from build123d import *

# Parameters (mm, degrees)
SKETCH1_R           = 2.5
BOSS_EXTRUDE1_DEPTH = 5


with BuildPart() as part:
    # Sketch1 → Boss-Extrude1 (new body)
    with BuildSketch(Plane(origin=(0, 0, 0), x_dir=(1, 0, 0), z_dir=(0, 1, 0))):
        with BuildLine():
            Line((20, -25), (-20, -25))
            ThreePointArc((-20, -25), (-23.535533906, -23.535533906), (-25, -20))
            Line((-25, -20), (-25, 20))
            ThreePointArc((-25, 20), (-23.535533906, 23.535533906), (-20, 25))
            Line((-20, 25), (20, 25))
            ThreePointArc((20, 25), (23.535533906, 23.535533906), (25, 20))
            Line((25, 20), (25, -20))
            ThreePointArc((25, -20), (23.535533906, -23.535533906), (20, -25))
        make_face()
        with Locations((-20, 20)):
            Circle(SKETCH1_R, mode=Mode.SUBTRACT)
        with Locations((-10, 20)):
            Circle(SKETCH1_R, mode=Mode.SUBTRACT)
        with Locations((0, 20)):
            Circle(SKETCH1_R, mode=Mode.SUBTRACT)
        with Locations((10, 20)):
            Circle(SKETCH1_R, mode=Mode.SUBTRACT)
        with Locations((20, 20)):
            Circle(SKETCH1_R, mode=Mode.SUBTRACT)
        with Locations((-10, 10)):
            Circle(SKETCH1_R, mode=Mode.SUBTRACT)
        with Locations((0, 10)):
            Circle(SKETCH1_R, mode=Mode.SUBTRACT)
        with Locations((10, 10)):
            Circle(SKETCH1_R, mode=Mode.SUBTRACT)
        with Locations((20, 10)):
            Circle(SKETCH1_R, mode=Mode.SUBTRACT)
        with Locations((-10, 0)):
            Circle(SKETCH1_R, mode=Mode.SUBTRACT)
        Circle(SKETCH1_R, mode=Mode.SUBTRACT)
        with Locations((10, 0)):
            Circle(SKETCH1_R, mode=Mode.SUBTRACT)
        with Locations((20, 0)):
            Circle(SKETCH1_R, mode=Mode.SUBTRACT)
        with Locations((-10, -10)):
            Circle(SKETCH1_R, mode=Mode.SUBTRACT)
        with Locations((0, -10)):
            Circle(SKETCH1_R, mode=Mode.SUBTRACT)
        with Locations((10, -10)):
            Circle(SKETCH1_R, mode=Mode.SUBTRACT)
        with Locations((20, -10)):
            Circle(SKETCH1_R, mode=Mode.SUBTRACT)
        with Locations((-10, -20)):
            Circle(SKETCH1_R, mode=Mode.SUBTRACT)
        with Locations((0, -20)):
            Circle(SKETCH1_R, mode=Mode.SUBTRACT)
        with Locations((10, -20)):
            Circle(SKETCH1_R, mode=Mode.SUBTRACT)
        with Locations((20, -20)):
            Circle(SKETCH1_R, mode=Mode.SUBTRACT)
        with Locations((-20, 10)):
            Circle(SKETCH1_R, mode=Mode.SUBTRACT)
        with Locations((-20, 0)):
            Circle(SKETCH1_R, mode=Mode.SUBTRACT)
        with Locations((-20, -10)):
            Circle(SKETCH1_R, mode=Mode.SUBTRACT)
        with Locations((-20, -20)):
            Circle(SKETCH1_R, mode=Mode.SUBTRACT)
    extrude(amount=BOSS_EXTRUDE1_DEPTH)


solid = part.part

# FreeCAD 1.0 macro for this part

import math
import FreeCAD as App
import Part
import Sketcher
Q = App.Units.Quantity

doc = App.newDocument("Part")
body = doc.addObject("PartDesign::Body", "Body")

sketch1 = body.newObject("Sketcher::SketchObject", "Sketch")
sketch1.AttachmentSupport = (doc.getObject("XZ_Plane"), [""])
sketch1.MapMode = "FlatFace"
sketch1.addGeometry([
    Part.LineSegment(App.Vector(-20, 25, 0), App.Vector(20, 25, 0)),
    Part.ArcOfCircle(Part.Circle(App.Vector(20, 20, 0), App.Vector(0, 0, 1), 5), math.radians(0), math.radians(90)),
    Part.LineSegment(App.Vector(25, 20, 0), App.Vector(25, -20, 0)),
    Part.ArcOfCircle(Part.Circle(App.Vector(20, -20, 0), App.Vector(0, 0, 1), 5), math.radians(-90), math.radians(0)),
    Part.LineSegment(App.Vector(20, -25, 0), App.Vector(-20, -25, 0)),
    Part.ArcOfCircle(Part.Circle(App.Vector(-20, -20, 0), App.Vector(0, 0, 1), 5), math.radians(180), math.radians(270)),
    Part.LineSegment(App.Vector(-25, -20, 0), App.Vector(-25, 20, 0)),
    Part.ArcOfCircle(Part.Circle(App.Vector(-20, 20, 0), App.Vector(0, 0, 1), 5), math.radians(90), math.radians(180)),
    Part.Circle(App.Vector(20, 20, 0), App.Vector(0, 0, 1), 2.5),
    Part.Circle(App.Vector(10, 20, 0), App.Vector(0, 0, 1), 2.5),
    Part.Circle(App.Vector(20, 10, 0), App.Vector(0, 0, 1), 2.5),
    Part.Circle(App.Vector(10, 10, 0), App.Vector(0, 0, 1), 2.5),
    Part.Circle(App.Vector(0, 20, 0), App.Vector(0, 0, 1), 2.5),
    Part.Circle(App.Vector(-10, 20, 0), App.Vector(0, 0, 1), 2.5),
    Part.Circle(App.Vector(-20, 20, 0), App.Vector(0, 0, 1), 2.5),
    Part.Circle(App.Vector(0, 10, 0), App.Vector(0, 0, 1), 2.5),
    Part.Circle(App.Vector(-10, 10, 0), App.Vector(0, 0, 1), 2.5),
    Part.Circle(App.Vector(-20, 10, 0), App.Vector(0, 0, 1), 2.5),
    Part.Circle(App.Vector(20, 0, 0), App.Vector(0, 0, 1), 2.5),
    Part.Circle(App.Vector(20, -10, 0), App.Vector(0, 0, 1), 2.5),
    Part.Circle(App.Vector(10, 0, 0), App.Vector(0, 0, 1), 2.5),
    Part.Circle(App.Vector(10, -10, 0), App.Vector(0, 0, 1), 2.5),
    Part.Circle(App.Vector(20, -20, 0), App.Vector(0, 0, 1), 2.5),
    Part.Circle(App.Vector(10, -20, 0), App.Vector(0, 0, 1), 2.5),
    Part.Circle(App.Vector(0, 0, 0), App.Vector(0, 0, 1), 2.5),
    Part.Circle(App.Vector(-10, 0, 0), App.Vector(0, 0, 1), 2.5),
    Part.Circle(App.Vector(0, -10, 0), App.Vector(0, 0, 1), 2.5),
    Part.Circle(App.Vector(-10, -10, 0), App.Vector(0, 0, 1), 2.5),
    Part.Circle(App.Vector(-20, 0, 0), App.Vector(0, 0, 1), 2.5),
    Part.Circle(App.Vector(-20, -10, 0), App.Vector(0, 0, 1), 2.5),
    Part.Circle(App.Vector(0, -20, 0), App.Vector(0, 0, 1), 2.5),
    Part.Circle(App.Vector(-10, -20, 0), App.Vector(0, 0, 1), 2.5),
    Part.Circle(App.Vector(-20, -20, 0), App.Vector(0, 0, 1), 2.5),
], False)
sketch1.addConstraint([
    Sketcher.Constraint("Tangent", 0, 2, 1, 2),
    Sketcher.Constraint("Tangent", 1, 1, 2, 1),
    Sketcher.Constraint("Tangent", 2, 2, 3, 2),
    Sketcher.Constraint("Tangent", 3, 1, 4, 1),
    Sketcher.Constraint("Tangent", 4, 2, 5, 2),
    Sketcher.Constraint("Tangent", 5, 1, 6, 1),
    Sketcher.Constraint("Tangent", 6, 2, 7, 2),
    Sketcher.Constraint("Tangent", 7, 1, 0, 1),
    Sketcher.Constraint("Horizontal", 0),
    Sketcher.Constraint("Vertical", 2),
    Sketcher.Constraint("Horizontal", 4),
    Sketcher.Constraint("Vertical", 6),
    Sketcher.Constraint("Coincident", 24, 3, -1, 1),
    Sketcher.Constraint("Coincident", 8, 3, 1, 3),
    Sketcher.Constraint("Coincident", 14, 3, 7, 3),
    Sketcher.Constraint("Coincident", 22, 3, 3, 3),
    Sketcher.Constraint("Coincident", 32, 3, 5, 3),
    Sketcher.Constraint("Equal", 1, 3),
    Sketcher.Constraint("Equal", 3, 5),
    Sketcher.Constraint("Equal", 5, 7),
    Sketcher.Constraint("Equal", 8, 9),
    Sketcher.Constraint("Equal", 9, 10),
    Sketcher.Constraint("Equal", 10, 11),
    Sketcher.Constraint("Equal", 11, 12),
    Sketcher.Constraint("Equal", 12, 13),
    Sketcher.Constraint("Equal", 13, 14),
    Sketcher.Constraint("Equal", 14, 15),
    Sketcher.Constraint("Equal", 15, 16),
    Sketcher.Constraint("Equal", 16, 17),
    Sketcher.Constraint("Equal", 17, 18),
    Sketcher.Constraint("Equal", 18, 19),
    Sketcher.Constraint("Equal", 19, 20),
    Sketcher.Constraint("Equal", 20, 21),
    Sketcher.Constraint("Equal", 21, 22),
    Sketcher.Constraint("Equal", 22, 23),
    Sketcher.Constraint("Equal", 23, 24),
    Sketcher.Constraint("Equal", 24, 25),
    Sketcher.Constraint("Equal", 25, 26),
    Sketcher.Constraint("Equal", 26, 27),
    Sketcher.Constraint("Equal", 27, 28),
    Sketcher.Constraint("Equal", 28, 29),
    Sketcher.Constraint("Equal", 29, 30),
    Sketcher.Constraint("Equal", 30, 31),
    Sketcher.Constraint("Equal", 31, 32),
    Sketcher.Constraint("Symmetric", 1, 3, 5, 3, -1, 1),
    Sketcher.Constraint("Symmetric", 17, 3, 19, 3, -1, 1),
    Sketcher.Constraint("Symmetric", 16, 3, 21, 3, -1, 1),
    Sketcher.Constraint("Symmetric", 13, 3, 23, 3, -1, 1),
    Sketcher.Constraint("Symmetric", 20, 3, 25, 3, -1, 1),
    Sketcher.Constraint("Symmetric", 15, 3, 26, 3, -1, 1),
    Sketcher.Constraint("Symmetric", 11, 3, 27, 3, -1, 1),
    Sketcher.Constraint("Symmetric", 18, 3, 28, 3, -1, 1),
    Sketcher.Constraint("Symmetric", 10, 3, 29, 3, -1, 1),
    Sketcher.Constraint("Symmetric", 12, 3, 30, 3, -1, 1),
    Sketcher.Constraint("Symmetric", 9, 3, 31, 3, -1, 1),
    Sketcher.Constraint("Symmetric", 9, 3, 13, 3, -2),
    Sketcher.Constraint("Symmetric", 11, 3, 16, 3, -2),
    Sketcher.Constraint("Symmetric", 10, 3, 17, 3, -2),
    Sketcher.Constraint("PointOnObject", 12, 3, -2),
    Sketcher.Constraint("PointOnObject", 15, 3, -2),
    Sketcher.Constraint("PointOnObject", 18, 3, -1),
    Sketcher.Constraint("PointOnObject", 20, 3, -1),
    Sketcher.Constraint("Horizontal", 8, 3, 9, 3),
    Sketcher.Constraint("Horizontal", 10, 3, 11, 3),
    Sketcher.Constraint("Horizontal", 9, 3, 12, 3),
    Sketcher.Constraint("Horizontal", 11, 3, 15, 3),
    Sketcher.Constraint("Vertical", 8, 3, 10, 3),
    Sketcher.Constraint("Vertical", 9, 3, 11, 3),
    Sketcher.Constraint("Vertical", 10, 3, 18, 3),
    Sketcher.Constraint("Vertical", 11, 3, 20, 3),
    Sketcher.Constraint("Equal", 4, 2),
    Sketcher.Constraint("Diameter", 8, Q("5 mm")),
    Sketcher.Constraint("Radius", 1, Q("5 mm")),
    Sketcher.Constraint("DistanceX", 0, 1, 0, 2, Q("40 mm")),
    Sketcher.Constraint("DistanceX", -1, 1, 9, 3, Q("10 mm")),
    Sketcher.Constraint("DistanceY", -1, 1, 10, 3, Q("10 mm")),
])
pad1 = body.newObject("PartDesign::Pad", "Pad")
pad1.Profile = sketch1
pad1.Length = 5
pad1.Reversed = True

doc.recompute()
